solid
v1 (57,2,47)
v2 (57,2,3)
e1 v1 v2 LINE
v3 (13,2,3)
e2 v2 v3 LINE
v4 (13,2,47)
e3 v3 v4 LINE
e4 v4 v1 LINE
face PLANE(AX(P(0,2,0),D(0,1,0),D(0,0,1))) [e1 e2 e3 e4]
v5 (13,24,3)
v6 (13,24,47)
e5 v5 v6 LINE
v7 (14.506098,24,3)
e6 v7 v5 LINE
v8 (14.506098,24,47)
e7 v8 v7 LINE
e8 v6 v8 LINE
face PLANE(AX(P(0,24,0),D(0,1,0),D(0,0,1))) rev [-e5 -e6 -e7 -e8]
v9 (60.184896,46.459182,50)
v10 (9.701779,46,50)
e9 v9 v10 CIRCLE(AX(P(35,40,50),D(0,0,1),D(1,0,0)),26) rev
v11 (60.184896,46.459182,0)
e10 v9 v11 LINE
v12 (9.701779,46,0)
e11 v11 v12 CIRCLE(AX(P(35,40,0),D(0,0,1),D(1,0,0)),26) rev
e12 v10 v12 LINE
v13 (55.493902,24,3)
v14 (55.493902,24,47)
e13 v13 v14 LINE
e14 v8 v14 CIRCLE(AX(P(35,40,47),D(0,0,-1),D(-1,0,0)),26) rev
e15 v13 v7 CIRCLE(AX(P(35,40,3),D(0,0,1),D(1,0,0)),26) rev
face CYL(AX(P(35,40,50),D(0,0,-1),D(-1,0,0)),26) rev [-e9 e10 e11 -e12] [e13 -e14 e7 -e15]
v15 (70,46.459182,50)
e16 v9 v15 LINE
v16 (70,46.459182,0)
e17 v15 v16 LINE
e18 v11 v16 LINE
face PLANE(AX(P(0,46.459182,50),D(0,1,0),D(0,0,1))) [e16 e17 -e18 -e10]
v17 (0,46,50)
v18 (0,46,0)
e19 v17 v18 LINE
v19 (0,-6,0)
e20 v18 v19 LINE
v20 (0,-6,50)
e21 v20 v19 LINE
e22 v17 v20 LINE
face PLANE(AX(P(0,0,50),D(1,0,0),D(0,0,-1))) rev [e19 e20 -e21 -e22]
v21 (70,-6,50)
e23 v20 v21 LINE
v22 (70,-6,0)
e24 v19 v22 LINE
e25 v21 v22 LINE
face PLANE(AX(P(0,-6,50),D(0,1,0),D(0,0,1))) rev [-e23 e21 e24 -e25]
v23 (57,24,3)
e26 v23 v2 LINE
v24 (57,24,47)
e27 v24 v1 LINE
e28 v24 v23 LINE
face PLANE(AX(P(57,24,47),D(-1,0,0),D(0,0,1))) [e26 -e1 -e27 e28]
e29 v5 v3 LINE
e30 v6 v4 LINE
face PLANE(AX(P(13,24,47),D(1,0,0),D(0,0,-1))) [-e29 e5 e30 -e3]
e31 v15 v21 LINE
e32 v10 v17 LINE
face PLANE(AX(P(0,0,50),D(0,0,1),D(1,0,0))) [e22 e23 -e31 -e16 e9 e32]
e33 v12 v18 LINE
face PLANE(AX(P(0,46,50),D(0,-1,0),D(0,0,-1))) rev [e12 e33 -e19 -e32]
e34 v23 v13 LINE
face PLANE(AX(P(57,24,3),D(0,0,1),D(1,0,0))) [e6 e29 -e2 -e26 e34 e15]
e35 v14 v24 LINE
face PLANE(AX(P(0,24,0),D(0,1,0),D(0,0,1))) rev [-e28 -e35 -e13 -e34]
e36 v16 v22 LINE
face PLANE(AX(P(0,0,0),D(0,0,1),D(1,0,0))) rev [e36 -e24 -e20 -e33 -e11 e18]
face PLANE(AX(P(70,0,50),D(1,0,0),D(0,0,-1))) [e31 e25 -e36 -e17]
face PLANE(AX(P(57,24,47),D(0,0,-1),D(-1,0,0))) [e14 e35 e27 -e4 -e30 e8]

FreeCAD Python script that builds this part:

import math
import FreeCAD as App
import Part
import Sketcher

V = App.Vector
Q = App.Units.Quantity

doc = App.newDocument("Part")
body = doc.addObject("PartDesign::Body", "Body")

# Sketch on XY plane
sketch1 = body.newObject("Sketcher::SketchObject", "Sketch")
sketch1.AttachmentSupport = (doc.getObject("XY_Plane"), [""])
sketch1.MapMode = "FlatFace"
sketch1.addGeometry(Part.LineSegment(V(70, 46.459182, 0), V(60.184896, 46.459182, 0)), False)
sketch1.addGeometry(Part.ArcOfCircle(Part.Circle(V(35, 40, 0), V(0, 0, 1), 26), math.radians(166.657636), math.radians(374.384632)), False)
sketch1.addGeometry(Part.LineSegment(V(9.701779, 46, 0), V(0, 46, 0)), False)
sketch1.addGeometry(Part.LineSegment(V(0, 46, 0), V(0, 0, 0)), False)
sketch1.addGeometry(Part.LineSegment(V(0, 0, 0), V(70, 0, 0)), False)
sketch1.addGeometry(Part.LineSegment(V(70, 0, 0), V(70, 46.459182, 0)), False)
sketch1.addConstraint(Sketcher.Constraint("Coincident", 0, 2, 1, 2))
sketch1.addConstraint(Sketcher.Constraint("Coincident", 1, 1, 2, 1))
sketch1.addConstraint(Sketcher.Constraint("Coincident", 2, 2, 3, 1))
sketch1.addConstraint(Sketcher.Constraint("Coincident", 3, 2, 4, 1))
sketch1.addConstraint(Sketcher.Constraint("Coincident", 4, 2, 5, 1))
sketch1.addConstraint(Sketcher.Constraint("Coincident", 5, 2, 0, 1))
sketch1.addConstraint(Sketcher.Constraint("Horizontal", 0))
sketch1.addConstraint(Sketcher.Constraint("Horizontal", 2))
sketch1.addConstraint(Sketcher.Constraint("Vertical", 3))
sketch1.addConstraint(Sketcher.Constraint("Horizontal", 4))
sketch1.addConstraint(Sketcher.Constraint("Vertical", 5))
sketch1.addConstraint(Sketcher.Constraint("Coincident", 3, 2, -1, 1))
sketch1.addConstraint(Sketcher.Constraint("Radius", 1, Q("26 mm")))
sketch1.addConstraint(Sketcher.Constraint("DistanceX", 4, 1, 4, 2, Q("70 mm")))
sketch1.addConstraint(Sketcher.Constraint("DistanceY", 3, 2, 3, 1, Q("46 mm")))
sketch1.addConstraint(Sketcher.Constraint("DistanceX", -1, 1, 1, 3, Q("35 mm")))
sketch1.addConstraint(Sketcher.Constraint("DistanceY", -1, 1, 1, 3, Q("40 mm")))
sketch1.addConstraint(Sketcher.Constraint("DistanceX", 0, 2, 0, 1, Q("9.815104 mm")))
pad1 = body.newObject("PartDesign::Pad", "Pad")
pad1.Profile = sketch1
pad1.Length = 50

# Sketch on XZ plane
sketch2 = body.newObject("Sketcher::SketchObject", "Sketch001")
sketch2.AttachmentSupport = (doc.getObject("XZ_Plane"), [""])
sketch2.MapMode = "FlatFace"
sketch2.AttachmentOffset = App.Placement(V(0, 0, -14), App.Rotation())
sketch2.addGeometry(Part.LineSegment(V(13, 3, 0), V(13, 47, 0)), False)
sketch2.addGeometry(Part.LineSegment(V(13, 47, 0), V(57, 47, 0)), False)
sketch2.addGeometry(Part.LineSegment(V(57, 47, 0), V(57, 3, 0)), False)
sketch2.addGeometry(Part.LineSegment(V(57, 3, 0), V(13, 3, 0)), False)
sketch2.addConstraint(Sketcher.Constraint("Coincident", 0, 2, 1, 1))
sketch2.addConstraint(Sketcher.Constraint("Coincident", 1, 2, 2, 1))
sketch2.addConstraint(Sketcher.Constraint("Coincident", 2, 2, 3, 1))
sketch2.addConstraint(Sketcher.Constraint("Coincident", 3, 2, 0, 1))
sketch2.addConstraint(Sketcher.Constraint("Vertical", 0))
sketch2.addConstraint(Sketcher.Constraint("Horizontal", 1))
sketch2.addConstraint(Sketcher.Constraint("Vertical", 2))
sketch2.addConstraint(Sketcher.Constraint("Horizontal", 3))
sketch2.addConstraint(Sketcher.Constraint("Equal", 3, 0))
sketch2.addConstraint(Sketcher.Constraint("DistanceX", 1, 1, 1, 2, Q("44 mm")))
sketch2.addConstraint(Sketcher.Constraint("DistanceX", -1, 1, 0, 2, Q("13 mm")))
sketch2.addConstraint(Sketcher.Constraint("DistanceY", -1, 1, 0, 2, Q("47 mm")))
pocket1 = body.newObject("PartDesign::Pocket", "Pocket")
pocket1.Profile = sketch2
pocket1.Length = 10

# Sketch on XZ plane
sketch3 = body.newObject("Sketcher::SketchObject", "Sketch002")
sketch3.AttachmentSupport = (doc.getObject("XZ_Plane"), [""])
sketch3.MapMode = "FlatFace"
sketch3.AttachmentOffset = App.Placement(V(0, 0, -14), App.Rotation())
sketch3.addGeometry(Part.LineSegment(V(13, 3, 0), V(13, 47, 0)), False)
sketch3.addGeometry(Part.LineSegment(V(13, 47, 0), V(57, 47, 0)), False)
sketch3.addGeometry(Part.LineSegment(V(57, 47, 0), V(57, 3, 0)), False)
sketch3.addGeometry(Part.LineSegment(V(57, 3, 0), V(13, 3, 0)), False)
sketch3.addConstraint(Sketcher.Constraint("Coincident", 0, 2, 1, 1))
sketch3.addConstraint(Sketcher.Constraint("Coincident", 1, 2, 2, 1))
sketch3.addConstraint(Sketcher.Constraint("Coincident", 2, 2, 3, 1))
sketch3.addConstraint(Sketcher.Constraint("Coincident", 3, 2, 0, 1))
sketch3.addConstraint(Sketcher.Constraint("Vertical", 0))
sketch3.addConstraint(Sketcher.Constraint("Horizontal", 1))
sketch3.addConstraint(Sketcher.Constraint("Vertical", 2))
sketch3.addConstraint(Sketcher.Constraint("Horizontal", 3))
sketch3.addConstraint(Sketcher.Constraint("Equal", 3, 0))
sketch3.addConstraint(Sketcher.Constraint("DistanceX", 1, 1, 1, 2, Q("44 mm")))
sketch3.addConstraint(Sketcher.Constraint("DistanceX", -1, 1, 0, 2, Q("13 mm")))
sketch3.addConstraint(Sketcher.Constraint("DistanceY", -1, 1, 0, 2, Q("47 mm")))
pocket2 = body.newObject("PartDesign::Pocket", "Pocket001")
pocket2.Profile = sketch3
pocket2.Length = 12
pocket2.Reversed = True

# Sketch on XY plane
sketch4 = body.newObject("Sketcher::SketchObject", "Sketch003")
sketch4.AttachmentSupport = (doc.getObject("XY_Plane"), [""])
sketch4.MapMode = "FlatFace"
sketch4.addGeometry(Part.LineSegment(V(0, 0, 0), V(0, -6, 0)), False)
sketch4.addGeometry(Part.LineSegment(V(0, -6, 0), V(70, -6, 0)), False)
sketch4.addGeometry(Part.LineSegment(V(70, -6, 0), V(70, 0, 0)), False)
sketch4.addGeometry(Part.LineSegment(V(70, 0, 0), V(0, 0, 0)), False)
sketch4.addConstraint(Sketcher.Constraint("Coincident", 0, 2, 1, 1))
sketch4.addConstraint(Sketcher.Constraint("Coincident", 1, 2, 2, 1))
sketch4.addConstraint(Sketcher.Constraint("Coincident", 2, 2, 3, 1))
sketch4.addConstraint(Sketcher.Constraint("Coincident", 3, 2, 0, 1))
sketch4.addConstraint(Sketcher.Constraint("Vertical", 0))
sketch4.addConstraint(Sketcher.Constraint("Horizontal", 1))
sketch4.addConstraint(Sketcher.Constraint("Vertical", 2))
sketch4.addConstraint(Sketcher.Constraint("Horizontal", 3))
sketch4.addConstraint(Sketcher.Constraint("Coincident", 3, 2, -1, 1))
sketch4.addConstraint(Sketcher.Constraint("DistanceX", 1, 1, 1, 2, Q("70 mm")))
sketch4.addConstraint(Sketcher.Constraint("DistanceY", 0, 2, 0, 1, Q("6 mm")))
pad2 = body.newObject("PartDesign::Pad", "Pad001")
pad2.Profile = sketch4
pad2.Length = 50

doc.recompute()
